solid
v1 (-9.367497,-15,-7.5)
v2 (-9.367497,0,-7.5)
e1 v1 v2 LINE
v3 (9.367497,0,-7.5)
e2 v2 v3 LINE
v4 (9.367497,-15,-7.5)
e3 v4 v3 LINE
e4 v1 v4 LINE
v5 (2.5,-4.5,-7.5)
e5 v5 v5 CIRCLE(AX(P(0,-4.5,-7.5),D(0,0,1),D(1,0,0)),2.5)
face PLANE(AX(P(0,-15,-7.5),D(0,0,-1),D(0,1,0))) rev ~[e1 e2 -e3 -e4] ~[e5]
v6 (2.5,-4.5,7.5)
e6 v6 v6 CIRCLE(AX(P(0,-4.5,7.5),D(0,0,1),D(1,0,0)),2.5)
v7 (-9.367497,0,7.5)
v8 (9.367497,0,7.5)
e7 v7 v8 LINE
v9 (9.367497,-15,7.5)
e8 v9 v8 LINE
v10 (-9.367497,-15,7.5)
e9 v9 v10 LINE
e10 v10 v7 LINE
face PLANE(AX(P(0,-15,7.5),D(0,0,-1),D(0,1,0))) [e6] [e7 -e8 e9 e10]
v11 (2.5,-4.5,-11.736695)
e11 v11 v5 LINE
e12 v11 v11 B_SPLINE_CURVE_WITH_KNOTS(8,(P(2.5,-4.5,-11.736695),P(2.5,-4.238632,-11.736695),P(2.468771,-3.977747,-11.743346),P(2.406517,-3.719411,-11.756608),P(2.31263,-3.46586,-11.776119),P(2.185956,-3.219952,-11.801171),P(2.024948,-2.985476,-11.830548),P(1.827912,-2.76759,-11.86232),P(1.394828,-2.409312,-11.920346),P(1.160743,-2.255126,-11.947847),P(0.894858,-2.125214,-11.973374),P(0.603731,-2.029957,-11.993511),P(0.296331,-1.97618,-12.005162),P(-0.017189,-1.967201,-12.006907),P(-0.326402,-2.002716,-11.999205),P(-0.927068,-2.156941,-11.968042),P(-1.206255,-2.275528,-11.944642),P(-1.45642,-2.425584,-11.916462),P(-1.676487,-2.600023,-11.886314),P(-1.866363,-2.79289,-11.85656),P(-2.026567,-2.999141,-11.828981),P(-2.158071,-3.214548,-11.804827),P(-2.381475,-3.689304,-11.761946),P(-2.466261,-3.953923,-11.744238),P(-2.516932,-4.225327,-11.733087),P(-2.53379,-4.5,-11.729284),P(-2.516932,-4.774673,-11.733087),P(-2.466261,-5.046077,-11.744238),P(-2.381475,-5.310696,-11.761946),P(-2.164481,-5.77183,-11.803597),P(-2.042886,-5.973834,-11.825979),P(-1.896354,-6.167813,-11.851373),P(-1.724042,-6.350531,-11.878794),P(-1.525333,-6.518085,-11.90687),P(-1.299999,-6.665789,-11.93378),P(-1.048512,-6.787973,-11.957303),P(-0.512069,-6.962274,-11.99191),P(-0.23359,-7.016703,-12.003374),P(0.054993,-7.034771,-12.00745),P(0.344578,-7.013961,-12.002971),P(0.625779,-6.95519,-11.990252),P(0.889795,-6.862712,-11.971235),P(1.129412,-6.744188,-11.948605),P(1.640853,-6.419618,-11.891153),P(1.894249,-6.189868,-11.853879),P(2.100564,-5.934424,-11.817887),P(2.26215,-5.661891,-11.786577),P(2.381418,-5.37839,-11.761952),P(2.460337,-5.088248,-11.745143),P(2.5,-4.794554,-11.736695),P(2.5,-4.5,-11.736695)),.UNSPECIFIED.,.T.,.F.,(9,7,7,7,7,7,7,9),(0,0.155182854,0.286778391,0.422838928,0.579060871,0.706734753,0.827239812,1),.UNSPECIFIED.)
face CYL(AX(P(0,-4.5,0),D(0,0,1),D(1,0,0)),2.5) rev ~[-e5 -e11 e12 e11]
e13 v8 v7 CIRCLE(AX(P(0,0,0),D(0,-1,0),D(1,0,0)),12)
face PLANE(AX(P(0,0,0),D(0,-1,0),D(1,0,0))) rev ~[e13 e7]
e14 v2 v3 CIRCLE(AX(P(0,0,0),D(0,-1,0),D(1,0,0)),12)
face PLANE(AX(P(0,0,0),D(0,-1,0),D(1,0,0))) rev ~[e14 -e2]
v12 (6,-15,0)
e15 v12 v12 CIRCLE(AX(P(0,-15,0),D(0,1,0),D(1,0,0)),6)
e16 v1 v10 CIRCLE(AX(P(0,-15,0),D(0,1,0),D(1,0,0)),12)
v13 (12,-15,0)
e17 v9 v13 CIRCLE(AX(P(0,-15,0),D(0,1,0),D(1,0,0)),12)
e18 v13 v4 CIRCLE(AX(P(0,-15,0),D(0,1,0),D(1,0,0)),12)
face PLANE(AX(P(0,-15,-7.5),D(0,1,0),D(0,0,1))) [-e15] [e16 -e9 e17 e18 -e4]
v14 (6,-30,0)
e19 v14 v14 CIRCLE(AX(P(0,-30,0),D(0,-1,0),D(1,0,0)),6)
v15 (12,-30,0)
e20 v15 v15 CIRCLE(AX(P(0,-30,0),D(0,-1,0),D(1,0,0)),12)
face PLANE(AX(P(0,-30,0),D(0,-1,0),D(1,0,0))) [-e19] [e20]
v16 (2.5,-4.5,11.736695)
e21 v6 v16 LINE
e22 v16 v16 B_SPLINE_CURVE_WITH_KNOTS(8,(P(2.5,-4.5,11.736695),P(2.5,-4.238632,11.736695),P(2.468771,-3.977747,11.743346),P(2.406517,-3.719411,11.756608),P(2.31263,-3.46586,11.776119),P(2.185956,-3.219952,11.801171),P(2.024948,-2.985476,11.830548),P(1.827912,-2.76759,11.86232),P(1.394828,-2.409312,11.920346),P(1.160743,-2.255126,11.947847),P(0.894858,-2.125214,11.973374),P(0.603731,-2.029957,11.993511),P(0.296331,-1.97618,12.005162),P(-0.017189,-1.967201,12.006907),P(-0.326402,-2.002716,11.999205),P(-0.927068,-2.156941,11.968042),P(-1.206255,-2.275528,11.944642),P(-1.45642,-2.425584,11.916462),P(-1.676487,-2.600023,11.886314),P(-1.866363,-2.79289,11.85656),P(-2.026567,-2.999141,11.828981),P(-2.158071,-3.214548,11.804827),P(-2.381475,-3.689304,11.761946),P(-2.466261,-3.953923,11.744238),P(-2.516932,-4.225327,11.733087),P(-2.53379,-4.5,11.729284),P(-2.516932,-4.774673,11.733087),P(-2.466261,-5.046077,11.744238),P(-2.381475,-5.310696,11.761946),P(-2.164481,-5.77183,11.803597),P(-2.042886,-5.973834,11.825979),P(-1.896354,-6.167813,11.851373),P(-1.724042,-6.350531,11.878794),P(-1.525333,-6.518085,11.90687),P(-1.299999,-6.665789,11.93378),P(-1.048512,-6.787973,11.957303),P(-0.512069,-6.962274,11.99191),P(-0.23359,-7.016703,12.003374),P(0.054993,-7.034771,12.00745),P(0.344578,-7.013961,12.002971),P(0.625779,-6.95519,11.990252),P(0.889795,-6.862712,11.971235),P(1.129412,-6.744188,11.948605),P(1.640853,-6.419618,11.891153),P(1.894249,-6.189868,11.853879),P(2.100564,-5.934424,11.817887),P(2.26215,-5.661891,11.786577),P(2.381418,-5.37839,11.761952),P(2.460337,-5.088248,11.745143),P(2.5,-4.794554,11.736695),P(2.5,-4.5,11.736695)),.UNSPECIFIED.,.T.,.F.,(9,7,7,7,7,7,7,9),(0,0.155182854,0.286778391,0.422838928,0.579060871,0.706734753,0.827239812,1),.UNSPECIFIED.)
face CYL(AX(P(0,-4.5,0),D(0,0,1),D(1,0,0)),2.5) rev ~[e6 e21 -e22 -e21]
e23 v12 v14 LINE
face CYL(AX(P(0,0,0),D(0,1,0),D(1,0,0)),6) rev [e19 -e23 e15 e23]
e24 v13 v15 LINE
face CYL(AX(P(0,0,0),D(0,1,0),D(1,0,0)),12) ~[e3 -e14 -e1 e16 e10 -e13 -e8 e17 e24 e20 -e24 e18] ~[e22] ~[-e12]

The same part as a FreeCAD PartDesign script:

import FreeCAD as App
import Part
import Sketcher

V = App.Vector


def add_polygon(sketch, points):
    """Adds a closed chain of lines whose ends are joined by coincident constraints."""
    first, n = sketch.GeometryCount, len(points)
    for a, b in zip(points, points[1:] + points[:1]):
        sketch.addGeometry(Part.LineSegment(App.Vector(*a, 0), App.Vector(*b, 0)), False)
    for i in range(n):
        sketch.addConstraint(Sketcher.Constraint("Coincident", first + i, 2, first + (i + 1) % n, 1))

doc = App.newDocument("Part")
body = doc.addObject("PartDesign::Body", "Body")

# Sketch on XZ plane
sketch1 = doc.addObject("Sketcher::SketchObject", "Sketch")
body.addObject(sketch1)
sketch1.AttachmentSupport = (doc.XZ_Plane, [""])
sketch1.MapMode = "FlatFace"
sketch1.addGeometry(Part.Circle(V(0, 0, 0), V(0, 0, 1), 12), False)
sketch1.addGeometry(Part.Circle(V(0, 0, 0), V(0, 0, 1), 6), False)
sketch1.addConstraint(Sketcher.Constraint("Coincident", 0, 3, -1, 1))
sketch1.addConstraint(Sketcher.Constraint("Coincident", 1, 3, -1, 1))
sketch1.addConstraint(Sketcher.Constraint("Diameter", 0, 24.0))
sketch1.addConstraint(Sketcher.Constraint("Diameter", 1, 12.0))
pad1 = doc.addObject("PartDesign::Pad", "Pad")
body.addObject(pad1)
pad1.Profile = sketch1
pad1.Length = 30

# Sketch on YZ plane
sketch2 = doc.addObject("Sketcher::SketchObject", "Sketch001")
body.addObject(sketch2)
sketch2.AttachmentSupport = (doc.YZ_Plane, [""])
sketch2.MapMode = "FlatFace"
add_polygon(sketch2, [(-15, 8), (-15, -8), (15, -8), (15, 8)])  # lines 0-3
sketch2.addConstraint(Sketcher.Constraint("Vertical", 0))
sketch2.addConstraint(Sketcher.Constraint("Horizontal", 1))
sketch2.addConstraint(Sketcher.Constraint("Vertical", 2))
sketch2.addConstraint(Sketcher.Constraint("Horizontal", 3))
sketch2.addConstraint(Sketcher.Constraint("Symmetric", 0, 2, 2, 2, -1, 1))
sketch2.addConstraint(Sketcher.Constraint("DistanceX", 1, 1, 1, 2, 30.0))
sketch2.addConstraint(Sketcher.Constraint("DistanceY", 0, 2, 0, 1, 15.0))
pocket1 = doc.addObject("PartDesign::Pocket", "Pocket")
body.addObject(pocket1)
pocket1.Profile = sketch2
pocket1.Length = 25
pocket1.Midplane = True

# Sketch on XY plane
sketch3 = doc.addObject("Sketcher::SketchObject", "Sketch002")
body.addObject(sketch3)
sketch3.AttachmentSupport = (doc.XY_Plane, [""])
sketch3.MapMode = "FlatFace"
sketch3.addGeometry(Part.Circle(V(0, -4.5, 0), V(0, 0, 1), 2.5), False)
sketch3.addConstraint(Sketcher.Constraint("PointOnObject", 0, 3, -2))
sketch3.addConstraint(Sketcher.Constraint("Diameter", 0, 5.0))
sketch3.addConstraint(Sketcher.Constraint("DistanceY", 0, 3, -1, 1, 4.5))
pocket2 = doc.addObject("PartDesign::Pocket", "Pocket001")
body.addObject(pocket2)
pocket2.Profile = sketch3
pocket2.Length = 25
pocket2.Midplane = True

doc.recompute()
